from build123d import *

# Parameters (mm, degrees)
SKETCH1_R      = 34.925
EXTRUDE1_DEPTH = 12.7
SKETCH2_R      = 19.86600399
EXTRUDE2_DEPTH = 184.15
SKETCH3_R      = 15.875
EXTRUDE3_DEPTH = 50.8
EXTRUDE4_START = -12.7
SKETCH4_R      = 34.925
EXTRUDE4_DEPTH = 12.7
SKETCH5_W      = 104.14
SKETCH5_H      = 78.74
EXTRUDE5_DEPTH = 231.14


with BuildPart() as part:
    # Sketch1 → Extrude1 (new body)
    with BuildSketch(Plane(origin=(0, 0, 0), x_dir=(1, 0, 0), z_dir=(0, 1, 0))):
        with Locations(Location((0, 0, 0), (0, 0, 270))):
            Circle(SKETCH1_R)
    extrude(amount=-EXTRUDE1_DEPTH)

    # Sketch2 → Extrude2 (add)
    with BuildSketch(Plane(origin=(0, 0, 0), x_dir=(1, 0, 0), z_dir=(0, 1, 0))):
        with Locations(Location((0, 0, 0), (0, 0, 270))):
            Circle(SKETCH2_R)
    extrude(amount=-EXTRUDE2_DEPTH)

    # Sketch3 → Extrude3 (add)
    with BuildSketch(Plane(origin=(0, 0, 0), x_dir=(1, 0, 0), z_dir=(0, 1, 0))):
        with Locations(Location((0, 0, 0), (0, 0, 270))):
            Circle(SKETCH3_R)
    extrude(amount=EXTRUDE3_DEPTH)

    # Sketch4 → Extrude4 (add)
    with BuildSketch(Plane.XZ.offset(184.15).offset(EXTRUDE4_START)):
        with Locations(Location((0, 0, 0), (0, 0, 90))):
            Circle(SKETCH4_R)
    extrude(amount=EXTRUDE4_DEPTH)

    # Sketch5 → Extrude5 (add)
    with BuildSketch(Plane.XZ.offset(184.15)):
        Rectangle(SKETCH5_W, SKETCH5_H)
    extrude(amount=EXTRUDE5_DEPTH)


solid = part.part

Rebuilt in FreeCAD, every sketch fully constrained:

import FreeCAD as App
import Part
import Sketcher
Q = App.Units.Quantity


def add_polygon(sketch, points):
    """Adds a closed chain of lines whose ends are joined by coincident constraints."""
    first, n = sketch.GeometryCount, len(points)
    for a, b in zip(points, points[1:] + points[:1]):
        sketch.addGeometry(Part.LineSegment(App.Vector(*a, 0), App.Vector(*b, 0)), False)
    for i in range(n):
        sketch.addConstraint(Sketcher.Constraint("Coincident", first + i, 2, first + (i + 1) % n, 1))

doc = App.newDocument("Part")
body = doc.addObject("PartDesign::Body", "Body")

# Sketch on XZ plane
sketch1 = body.newObject("Sketcher::SketchObject", "Sketch")
sketch1.AttachmentSupport = (doc.getObject("XZ_Plane"), [""])
sketch1.MapMode = "FlatFace"
sketch1.addGeometry(Part.Circle(App.Vector(0, 0, 0), App.Vector(0, 0, 1), 35), False)
sketch1.addConstraint([
    Sketcher.Constraint("Coincident", 0, 3, -1, 1),
    Sketcher.Constraint("Diameter", 0, Q("2.75 in")),
])
pad1 = body.newObject("PartDesign::Pad", "Pad")
pad1.Profile = sketch1
pad1.Length = Q("0.5 in")

# Sketch on XZ plane
sketch2 = body.newObject("Sketcher::SketchObject", "Sketch001")
sketch2.AttachmentSupport = (doc.getObject("XZ_Plane"), [""])
sketch2.MapMode = "FlatFace"
sketch2.addGeometry(Part.Circle(App.Vector(0, 0, 0), App.Vector(0, 0, 1), 20), False)
sketch2.addConstraint([
    Sketcher.Constraint("Coincident", 0, 3, -1, 1),
    Sketcher.Constraint("Diameter", 0, Q("39.732008 mm")),
])
pad2 = body.newObject("PartDesign::Pad", "Pad001")
pad2.Profile = sketch2
pad2.Length = Q("7.25 in")

# Sketch on XZ plane
sketch3 = body.newObject("Sketcher::SketchObject", "Sketch002")
sketch3.AttachmentSupport = (doc.getObject("XZ_Plane"), [""])
sketch3.MapMode = "FlatFace"
sketch3.addGeometry(Part.Circle(App.Vector(0, 0, 0), App.Vector(0, 0, 1), 16), False)
sketch3.addConstraint([
    Sketcher.Constraint("Coincident", 0, 3, -1, 1),
    Sketcher.Constraint("Diameter", 0, Q("1.25 in")),
])
pad3 = body.newObject("PartDesign::Pad", "Pad002")
pad3.Profile = sketch3
pad3.Length = Q("2 in")
pad3.Reversed = True

# Sketch on XZ plane
sketch4 = body.newObject("Sketcher::SketchObject", "Sketch003")
sketch4.AttachmentSupport = (doc.getObject("XZ_Plane"), [""])
sketch4.MapMode = "FlatFace"
sketch4.AttachmentOffset = App.Placement(App.Vector(0, 0, 6.75 * 25.4), App.Rotation())
sketch4.addGeometry(Part.Circle(App.Vector(0, 0, 0), App.Vector(0, 0, 1), 35), False)
sketch4.addConstraint([
    Sketcher.Constraint("Coincident", 0, 3, -1, 1),
    Sketcher.Constraint("Diameter", 0, Q("2.75 in")),
])
pad4 = body.newObject("PartDesign::Pad", "Pad003")
pad4.Profile = sketch4
pad4.Length = Q("0.5 in")

# Sketch on XZ plane
sketch5 = body.newObject("Sketcher::SketchObject", "Sketch004")
sketch5.AttachmentSupport = (doc.getObject("XZ_Plane"), [""])
sketch5.MapMode = "FlatFace"
sketch5.AttachmentOffset = App.Placement(App.Vector(0, 0, 7.25 * 25.4), App.Rotation())
add_polygon(sketch5, [(-52, 39), (-52, -39), (52, -39), (52, 39)])  # lines 0-3
sketch5.addConstraint([
    Sketcher.Constraint("Vertical", 0),
    Sketcher.Constraint("Horizontal", 1),
    Sketcher.Constraint("Vertical", 2),
    Sketcher.Constraint("Horizontal", 3),
    Sketcher.Constraint("Symmetric", 0, 2, 2, 2, -1, 1),
    Sketcher.Constraint("DistanceX", 1, 1, 1, 2, Q("4.1 in")),
    Sketcher.Constraint("DistanceY", 0, 2, 0, 1, Q("3.1 in")),
])
pad5 = body.newObject("PartDesign::Pad", "Pad004")
pad5.Profile = sketch5
pad5.Length = Q("9.1 in")

doc.recompute()
